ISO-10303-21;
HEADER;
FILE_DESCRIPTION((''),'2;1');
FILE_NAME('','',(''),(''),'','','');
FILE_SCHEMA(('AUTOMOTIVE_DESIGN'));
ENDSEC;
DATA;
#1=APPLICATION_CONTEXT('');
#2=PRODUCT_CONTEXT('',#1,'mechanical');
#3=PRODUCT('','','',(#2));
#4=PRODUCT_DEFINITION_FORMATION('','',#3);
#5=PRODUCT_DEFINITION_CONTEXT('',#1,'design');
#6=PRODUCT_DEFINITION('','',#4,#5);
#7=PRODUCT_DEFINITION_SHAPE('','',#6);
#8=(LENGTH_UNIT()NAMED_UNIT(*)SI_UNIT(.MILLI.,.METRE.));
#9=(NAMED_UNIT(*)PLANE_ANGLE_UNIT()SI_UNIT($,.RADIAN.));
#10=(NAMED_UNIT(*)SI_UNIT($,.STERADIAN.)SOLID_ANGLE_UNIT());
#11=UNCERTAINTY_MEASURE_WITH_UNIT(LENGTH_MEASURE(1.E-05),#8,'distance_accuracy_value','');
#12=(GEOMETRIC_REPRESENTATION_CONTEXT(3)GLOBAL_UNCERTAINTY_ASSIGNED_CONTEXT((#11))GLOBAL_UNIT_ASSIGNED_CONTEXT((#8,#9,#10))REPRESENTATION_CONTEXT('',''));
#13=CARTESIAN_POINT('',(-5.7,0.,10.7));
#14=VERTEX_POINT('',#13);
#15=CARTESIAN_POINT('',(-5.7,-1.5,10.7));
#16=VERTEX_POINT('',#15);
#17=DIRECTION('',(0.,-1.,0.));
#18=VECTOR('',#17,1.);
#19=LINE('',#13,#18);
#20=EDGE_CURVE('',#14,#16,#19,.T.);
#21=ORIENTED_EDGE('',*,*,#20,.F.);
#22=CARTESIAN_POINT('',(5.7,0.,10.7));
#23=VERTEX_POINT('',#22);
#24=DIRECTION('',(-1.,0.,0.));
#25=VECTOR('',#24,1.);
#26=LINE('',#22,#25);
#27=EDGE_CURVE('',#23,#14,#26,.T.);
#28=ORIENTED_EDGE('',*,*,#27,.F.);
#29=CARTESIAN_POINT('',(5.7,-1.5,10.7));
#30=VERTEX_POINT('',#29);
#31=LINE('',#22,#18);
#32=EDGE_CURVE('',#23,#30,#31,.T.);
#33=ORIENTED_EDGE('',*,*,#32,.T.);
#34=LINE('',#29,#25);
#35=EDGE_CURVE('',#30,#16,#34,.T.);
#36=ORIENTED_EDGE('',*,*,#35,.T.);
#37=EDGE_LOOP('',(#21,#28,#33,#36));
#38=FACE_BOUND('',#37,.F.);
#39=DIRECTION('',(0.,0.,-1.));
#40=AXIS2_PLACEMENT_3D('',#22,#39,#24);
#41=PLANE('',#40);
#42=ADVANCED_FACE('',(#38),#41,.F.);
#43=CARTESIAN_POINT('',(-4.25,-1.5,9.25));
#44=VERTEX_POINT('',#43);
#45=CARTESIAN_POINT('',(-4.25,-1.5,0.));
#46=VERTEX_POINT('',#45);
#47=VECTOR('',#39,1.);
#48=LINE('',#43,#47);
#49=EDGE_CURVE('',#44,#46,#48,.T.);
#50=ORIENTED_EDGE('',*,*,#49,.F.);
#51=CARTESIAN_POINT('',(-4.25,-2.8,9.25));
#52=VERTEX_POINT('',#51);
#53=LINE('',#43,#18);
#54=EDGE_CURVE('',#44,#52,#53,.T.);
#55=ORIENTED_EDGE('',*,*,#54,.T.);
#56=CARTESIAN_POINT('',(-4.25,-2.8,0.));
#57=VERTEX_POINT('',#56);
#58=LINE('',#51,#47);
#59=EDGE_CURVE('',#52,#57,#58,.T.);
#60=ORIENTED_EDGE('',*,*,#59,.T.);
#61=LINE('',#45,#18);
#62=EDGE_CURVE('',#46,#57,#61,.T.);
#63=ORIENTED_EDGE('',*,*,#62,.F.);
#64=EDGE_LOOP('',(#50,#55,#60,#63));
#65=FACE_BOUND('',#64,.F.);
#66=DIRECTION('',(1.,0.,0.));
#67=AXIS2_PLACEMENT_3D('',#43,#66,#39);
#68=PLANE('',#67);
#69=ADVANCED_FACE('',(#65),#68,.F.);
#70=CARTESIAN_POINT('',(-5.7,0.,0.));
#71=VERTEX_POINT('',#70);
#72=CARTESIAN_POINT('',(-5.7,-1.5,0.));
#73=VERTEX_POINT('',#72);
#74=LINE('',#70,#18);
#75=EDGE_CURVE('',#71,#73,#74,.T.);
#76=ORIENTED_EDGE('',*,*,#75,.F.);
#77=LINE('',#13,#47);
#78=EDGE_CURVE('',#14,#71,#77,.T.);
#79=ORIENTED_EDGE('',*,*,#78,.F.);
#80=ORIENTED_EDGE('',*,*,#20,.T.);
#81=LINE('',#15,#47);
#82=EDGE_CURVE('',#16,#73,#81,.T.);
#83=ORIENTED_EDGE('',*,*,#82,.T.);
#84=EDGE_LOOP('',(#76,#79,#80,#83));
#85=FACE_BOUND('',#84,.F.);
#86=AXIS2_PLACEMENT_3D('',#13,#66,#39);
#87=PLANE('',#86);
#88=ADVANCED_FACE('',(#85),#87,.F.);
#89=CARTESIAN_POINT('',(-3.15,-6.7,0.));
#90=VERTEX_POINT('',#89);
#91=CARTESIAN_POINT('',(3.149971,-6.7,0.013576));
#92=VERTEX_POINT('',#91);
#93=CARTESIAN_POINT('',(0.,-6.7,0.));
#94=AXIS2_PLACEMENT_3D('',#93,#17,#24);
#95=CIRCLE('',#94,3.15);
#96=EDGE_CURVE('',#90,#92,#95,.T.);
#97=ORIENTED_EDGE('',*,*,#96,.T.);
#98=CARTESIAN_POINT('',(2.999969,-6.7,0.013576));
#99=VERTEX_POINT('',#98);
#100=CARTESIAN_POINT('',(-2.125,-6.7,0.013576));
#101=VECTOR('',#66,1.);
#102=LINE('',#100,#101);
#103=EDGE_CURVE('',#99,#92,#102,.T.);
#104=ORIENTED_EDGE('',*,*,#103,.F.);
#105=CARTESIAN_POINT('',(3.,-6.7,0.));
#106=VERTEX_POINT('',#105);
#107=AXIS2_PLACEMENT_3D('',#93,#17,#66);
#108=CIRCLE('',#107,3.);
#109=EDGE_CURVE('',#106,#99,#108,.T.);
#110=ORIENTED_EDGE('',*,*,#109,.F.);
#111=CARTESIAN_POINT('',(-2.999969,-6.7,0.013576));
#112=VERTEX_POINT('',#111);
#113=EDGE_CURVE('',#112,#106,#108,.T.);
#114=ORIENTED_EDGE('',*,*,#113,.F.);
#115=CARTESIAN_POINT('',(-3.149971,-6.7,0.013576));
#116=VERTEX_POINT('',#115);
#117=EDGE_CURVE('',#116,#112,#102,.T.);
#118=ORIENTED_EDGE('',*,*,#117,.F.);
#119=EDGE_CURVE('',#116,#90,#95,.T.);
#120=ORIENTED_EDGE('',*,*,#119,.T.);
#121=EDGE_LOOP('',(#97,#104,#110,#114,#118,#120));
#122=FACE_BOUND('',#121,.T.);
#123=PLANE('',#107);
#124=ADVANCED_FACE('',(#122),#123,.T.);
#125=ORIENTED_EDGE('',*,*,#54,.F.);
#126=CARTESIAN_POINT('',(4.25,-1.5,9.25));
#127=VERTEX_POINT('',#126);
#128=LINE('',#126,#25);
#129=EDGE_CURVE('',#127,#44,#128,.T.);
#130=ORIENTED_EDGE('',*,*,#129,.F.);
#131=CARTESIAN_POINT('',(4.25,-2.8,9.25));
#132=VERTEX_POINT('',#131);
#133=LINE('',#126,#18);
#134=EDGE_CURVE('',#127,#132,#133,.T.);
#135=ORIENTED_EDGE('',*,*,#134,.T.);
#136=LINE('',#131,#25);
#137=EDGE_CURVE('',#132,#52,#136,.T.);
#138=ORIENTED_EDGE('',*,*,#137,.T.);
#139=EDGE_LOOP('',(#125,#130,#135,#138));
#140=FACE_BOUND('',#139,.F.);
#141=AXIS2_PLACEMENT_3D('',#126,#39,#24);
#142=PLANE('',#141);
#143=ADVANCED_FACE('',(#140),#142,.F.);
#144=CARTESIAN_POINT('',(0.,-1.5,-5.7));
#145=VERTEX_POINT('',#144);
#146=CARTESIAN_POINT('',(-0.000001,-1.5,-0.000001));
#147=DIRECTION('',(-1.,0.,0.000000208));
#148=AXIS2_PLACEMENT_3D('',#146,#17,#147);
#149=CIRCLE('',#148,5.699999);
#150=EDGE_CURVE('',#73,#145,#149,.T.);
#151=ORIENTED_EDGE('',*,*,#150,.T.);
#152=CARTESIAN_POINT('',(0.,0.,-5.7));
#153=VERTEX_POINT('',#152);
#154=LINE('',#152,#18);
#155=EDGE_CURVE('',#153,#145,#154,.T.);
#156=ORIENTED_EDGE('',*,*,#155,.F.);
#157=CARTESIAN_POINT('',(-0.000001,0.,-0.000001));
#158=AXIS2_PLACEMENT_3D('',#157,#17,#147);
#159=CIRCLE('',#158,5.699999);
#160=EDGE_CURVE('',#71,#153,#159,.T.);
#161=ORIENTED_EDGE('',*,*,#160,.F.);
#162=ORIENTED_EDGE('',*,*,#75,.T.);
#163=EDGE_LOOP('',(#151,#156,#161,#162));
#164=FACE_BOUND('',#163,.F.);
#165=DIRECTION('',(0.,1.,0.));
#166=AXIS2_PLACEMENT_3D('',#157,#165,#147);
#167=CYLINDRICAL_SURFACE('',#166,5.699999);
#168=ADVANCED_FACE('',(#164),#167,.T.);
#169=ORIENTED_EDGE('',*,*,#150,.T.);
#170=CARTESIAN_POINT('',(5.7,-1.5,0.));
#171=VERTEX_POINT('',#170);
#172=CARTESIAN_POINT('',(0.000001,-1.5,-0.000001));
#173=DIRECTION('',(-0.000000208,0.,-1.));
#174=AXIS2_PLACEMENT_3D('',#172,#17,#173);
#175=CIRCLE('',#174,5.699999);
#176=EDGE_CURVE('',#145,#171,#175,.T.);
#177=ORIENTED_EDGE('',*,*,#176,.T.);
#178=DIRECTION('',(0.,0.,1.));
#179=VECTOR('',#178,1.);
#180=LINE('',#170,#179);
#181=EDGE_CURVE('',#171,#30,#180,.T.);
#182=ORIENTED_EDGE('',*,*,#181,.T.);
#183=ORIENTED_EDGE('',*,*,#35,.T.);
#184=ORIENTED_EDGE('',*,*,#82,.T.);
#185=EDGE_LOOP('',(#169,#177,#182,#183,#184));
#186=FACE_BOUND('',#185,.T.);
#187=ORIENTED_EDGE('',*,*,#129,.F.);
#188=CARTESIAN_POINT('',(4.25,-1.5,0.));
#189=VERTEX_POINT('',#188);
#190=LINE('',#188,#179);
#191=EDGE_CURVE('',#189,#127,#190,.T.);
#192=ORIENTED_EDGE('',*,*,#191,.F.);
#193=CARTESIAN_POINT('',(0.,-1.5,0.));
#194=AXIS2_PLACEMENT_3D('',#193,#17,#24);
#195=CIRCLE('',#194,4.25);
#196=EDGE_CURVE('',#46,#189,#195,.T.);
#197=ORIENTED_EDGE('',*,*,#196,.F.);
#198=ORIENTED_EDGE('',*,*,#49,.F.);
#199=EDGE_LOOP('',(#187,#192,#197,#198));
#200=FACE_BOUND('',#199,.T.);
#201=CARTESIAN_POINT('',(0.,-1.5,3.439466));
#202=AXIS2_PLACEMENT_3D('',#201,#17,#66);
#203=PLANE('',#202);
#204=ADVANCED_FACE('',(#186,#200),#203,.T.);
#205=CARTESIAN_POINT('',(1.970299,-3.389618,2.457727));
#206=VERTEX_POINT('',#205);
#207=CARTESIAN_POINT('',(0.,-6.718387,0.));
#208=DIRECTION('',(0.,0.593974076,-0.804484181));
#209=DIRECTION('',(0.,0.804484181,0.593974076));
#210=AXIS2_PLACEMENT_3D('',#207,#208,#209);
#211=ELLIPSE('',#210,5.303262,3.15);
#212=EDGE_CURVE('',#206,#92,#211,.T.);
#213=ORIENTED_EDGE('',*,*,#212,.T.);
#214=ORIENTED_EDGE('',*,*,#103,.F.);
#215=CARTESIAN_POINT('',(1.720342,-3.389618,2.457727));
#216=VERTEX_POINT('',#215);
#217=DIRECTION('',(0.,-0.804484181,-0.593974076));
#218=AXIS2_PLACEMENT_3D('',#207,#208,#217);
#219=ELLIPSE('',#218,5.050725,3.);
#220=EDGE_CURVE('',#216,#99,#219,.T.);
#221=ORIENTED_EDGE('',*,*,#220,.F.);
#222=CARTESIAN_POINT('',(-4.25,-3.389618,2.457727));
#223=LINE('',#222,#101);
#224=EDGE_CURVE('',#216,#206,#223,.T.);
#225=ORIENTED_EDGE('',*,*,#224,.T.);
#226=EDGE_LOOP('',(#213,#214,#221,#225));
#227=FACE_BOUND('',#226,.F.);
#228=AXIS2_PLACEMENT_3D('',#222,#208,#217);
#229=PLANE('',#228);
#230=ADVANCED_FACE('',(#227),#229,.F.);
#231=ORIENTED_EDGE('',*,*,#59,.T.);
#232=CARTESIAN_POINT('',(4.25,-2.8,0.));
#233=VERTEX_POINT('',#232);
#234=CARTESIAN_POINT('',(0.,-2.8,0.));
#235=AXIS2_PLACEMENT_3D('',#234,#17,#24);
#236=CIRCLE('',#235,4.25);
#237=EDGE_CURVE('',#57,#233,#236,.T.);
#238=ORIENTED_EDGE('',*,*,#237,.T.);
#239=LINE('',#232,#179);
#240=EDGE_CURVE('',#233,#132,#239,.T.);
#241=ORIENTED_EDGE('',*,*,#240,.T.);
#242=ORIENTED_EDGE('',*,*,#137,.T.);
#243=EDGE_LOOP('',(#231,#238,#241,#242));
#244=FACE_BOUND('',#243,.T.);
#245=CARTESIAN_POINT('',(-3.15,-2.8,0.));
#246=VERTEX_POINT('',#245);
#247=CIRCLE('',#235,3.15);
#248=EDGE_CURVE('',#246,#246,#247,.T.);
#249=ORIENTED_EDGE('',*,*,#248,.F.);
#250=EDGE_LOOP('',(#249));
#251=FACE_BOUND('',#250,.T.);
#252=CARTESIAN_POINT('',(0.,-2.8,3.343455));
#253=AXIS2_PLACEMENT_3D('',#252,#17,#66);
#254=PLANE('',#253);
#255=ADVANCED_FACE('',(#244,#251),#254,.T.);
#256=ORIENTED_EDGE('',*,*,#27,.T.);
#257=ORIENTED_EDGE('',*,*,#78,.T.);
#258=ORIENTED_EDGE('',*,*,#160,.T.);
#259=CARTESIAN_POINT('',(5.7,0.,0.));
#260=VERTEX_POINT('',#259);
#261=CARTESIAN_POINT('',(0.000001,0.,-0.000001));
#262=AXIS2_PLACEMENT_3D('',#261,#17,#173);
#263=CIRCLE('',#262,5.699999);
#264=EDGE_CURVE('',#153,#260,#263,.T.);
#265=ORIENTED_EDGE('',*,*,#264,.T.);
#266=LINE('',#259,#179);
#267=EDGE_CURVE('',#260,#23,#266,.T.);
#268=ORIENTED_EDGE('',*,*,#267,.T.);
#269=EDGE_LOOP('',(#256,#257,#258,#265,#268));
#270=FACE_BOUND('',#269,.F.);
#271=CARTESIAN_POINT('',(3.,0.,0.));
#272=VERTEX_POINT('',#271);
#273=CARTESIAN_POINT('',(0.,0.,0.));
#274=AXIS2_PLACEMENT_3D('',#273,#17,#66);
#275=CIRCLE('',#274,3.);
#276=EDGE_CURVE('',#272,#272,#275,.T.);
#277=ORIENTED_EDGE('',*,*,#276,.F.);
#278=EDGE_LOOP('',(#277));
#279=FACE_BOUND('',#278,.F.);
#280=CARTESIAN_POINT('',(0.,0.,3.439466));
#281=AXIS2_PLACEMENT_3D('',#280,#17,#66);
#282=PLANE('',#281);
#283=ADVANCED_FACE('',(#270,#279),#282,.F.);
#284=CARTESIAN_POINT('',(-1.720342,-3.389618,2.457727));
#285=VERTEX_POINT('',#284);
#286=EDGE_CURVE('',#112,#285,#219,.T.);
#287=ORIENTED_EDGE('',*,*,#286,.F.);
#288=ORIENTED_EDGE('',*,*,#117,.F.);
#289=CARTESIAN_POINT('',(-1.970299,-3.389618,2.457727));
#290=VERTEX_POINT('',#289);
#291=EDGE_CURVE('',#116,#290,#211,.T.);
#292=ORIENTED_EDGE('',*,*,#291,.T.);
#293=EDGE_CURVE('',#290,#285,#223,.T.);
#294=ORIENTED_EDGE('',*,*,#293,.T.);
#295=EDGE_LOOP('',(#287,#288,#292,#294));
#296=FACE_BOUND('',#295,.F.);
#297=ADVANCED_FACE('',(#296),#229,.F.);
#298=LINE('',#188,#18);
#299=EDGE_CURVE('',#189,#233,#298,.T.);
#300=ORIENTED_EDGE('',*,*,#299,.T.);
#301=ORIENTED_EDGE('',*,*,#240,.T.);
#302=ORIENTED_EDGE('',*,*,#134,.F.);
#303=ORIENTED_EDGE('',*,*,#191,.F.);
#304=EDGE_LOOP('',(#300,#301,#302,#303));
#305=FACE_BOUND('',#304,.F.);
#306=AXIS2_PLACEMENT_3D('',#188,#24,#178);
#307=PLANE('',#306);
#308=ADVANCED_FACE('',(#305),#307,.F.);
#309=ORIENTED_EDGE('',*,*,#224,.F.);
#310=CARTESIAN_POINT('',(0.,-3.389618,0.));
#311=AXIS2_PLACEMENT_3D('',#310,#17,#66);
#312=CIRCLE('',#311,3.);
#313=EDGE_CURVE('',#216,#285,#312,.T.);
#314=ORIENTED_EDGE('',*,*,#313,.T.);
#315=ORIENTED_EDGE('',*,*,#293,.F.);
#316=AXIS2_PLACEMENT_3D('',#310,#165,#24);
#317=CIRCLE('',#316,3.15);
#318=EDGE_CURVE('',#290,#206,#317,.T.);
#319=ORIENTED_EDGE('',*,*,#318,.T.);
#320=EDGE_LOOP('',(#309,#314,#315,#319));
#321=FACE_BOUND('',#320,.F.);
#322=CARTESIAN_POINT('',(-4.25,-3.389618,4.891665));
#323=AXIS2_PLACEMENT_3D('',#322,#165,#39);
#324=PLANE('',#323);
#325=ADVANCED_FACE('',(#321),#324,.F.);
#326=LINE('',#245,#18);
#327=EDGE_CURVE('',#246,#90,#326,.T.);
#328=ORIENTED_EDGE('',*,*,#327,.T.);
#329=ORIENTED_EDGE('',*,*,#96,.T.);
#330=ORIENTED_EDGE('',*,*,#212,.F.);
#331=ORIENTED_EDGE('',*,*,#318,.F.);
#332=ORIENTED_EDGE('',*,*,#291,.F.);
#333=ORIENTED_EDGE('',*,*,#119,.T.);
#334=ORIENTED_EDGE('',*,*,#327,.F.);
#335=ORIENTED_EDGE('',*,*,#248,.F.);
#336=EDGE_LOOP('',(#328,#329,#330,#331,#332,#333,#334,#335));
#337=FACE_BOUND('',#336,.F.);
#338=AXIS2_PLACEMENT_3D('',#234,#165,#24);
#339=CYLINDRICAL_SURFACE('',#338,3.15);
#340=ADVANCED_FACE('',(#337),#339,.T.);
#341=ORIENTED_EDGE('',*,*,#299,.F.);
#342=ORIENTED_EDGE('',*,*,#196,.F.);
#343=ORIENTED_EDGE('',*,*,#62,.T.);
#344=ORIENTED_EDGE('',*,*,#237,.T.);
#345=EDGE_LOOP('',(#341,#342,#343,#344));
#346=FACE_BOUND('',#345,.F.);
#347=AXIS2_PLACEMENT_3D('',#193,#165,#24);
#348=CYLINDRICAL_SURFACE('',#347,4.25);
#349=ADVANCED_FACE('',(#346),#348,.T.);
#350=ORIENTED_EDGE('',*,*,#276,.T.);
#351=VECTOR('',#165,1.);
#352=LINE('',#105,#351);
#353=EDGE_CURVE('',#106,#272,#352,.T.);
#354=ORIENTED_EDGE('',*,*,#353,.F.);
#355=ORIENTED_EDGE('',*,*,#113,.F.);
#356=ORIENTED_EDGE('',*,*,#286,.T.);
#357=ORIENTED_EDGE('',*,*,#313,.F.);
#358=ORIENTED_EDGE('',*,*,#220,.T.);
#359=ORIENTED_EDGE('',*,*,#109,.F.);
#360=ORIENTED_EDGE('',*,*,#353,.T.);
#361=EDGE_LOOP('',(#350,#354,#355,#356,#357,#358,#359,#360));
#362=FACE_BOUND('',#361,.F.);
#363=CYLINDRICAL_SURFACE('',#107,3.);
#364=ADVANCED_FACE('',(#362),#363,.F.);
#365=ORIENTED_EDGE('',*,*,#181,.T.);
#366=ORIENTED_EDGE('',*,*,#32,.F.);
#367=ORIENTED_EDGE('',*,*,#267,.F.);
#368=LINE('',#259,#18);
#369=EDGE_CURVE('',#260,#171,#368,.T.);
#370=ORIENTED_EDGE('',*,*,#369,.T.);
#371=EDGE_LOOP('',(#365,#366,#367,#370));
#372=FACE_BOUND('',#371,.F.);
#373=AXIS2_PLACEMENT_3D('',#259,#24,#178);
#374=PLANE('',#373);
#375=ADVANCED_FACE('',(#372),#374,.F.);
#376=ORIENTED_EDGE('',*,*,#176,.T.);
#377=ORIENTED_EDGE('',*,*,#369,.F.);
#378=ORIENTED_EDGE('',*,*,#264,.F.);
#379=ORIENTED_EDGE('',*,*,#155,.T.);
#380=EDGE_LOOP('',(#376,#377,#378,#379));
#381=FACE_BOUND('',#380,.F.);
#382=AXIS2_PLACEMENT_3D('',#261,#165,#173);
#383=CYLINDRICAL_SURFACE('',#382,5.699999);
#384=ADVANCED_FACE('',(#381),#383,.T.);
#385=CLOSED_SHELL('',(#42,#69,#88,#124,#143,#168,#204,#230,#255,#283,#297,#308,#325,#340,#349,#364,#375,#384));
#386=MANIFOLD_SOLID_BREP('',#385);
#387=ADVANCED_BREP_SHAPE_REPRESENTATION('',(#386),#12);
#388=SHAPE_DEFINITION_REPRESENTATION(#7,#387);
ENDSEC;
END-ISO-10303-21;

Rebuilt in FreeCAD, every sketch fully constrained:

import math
import FreeCAD as App
import Part
import Sketcher
from FreeCAD import Vector
Q = App.Units.Quantity


def add_polygon(sketch, points):
    """Adds a closed chain of lines whose ends are joined by coincident constraints."""
    first, n = sketch.GeometryCount, len(points)
    for a, b in zip(points, points[1:] + points[:1]):
        sketch.addGeometry(Part.LineSegment(App.Vector(*a, 0), App.Vector(*b, 0)), False)
    for i in range(n):
        sketch.addConstraint(Sketcher.Constraint("Coincident", first + i, 2, first + (i + 1) % n, 1))

doc = App.newDocument("Part")
body = doc.addObject("PartDesign::Body", "Body")

# Sketch on XZ plane
sketch1 = body.newObject("Sketcher::SketchObject", "Sketch")
sketch1.AttachmentSupport = (doc.getObject("XZ_Plane"), [""])
sketch1.MapMode = "FlatFace"
sketch1.addGeometry([
    Part.LineSegment(Vector(-6, 11, 0), Vector(-6, 0, 0)),  # 0
    Part.ArcOfCircle(Part.Circle(Vector(0, 0, 0), Vector(0, 0, 1), 6), math.radians(180), math.radians(270)),  # 1
    Part.ArcOfCircle(Part.Circle(Vector(0, 0, 0), Vector(0, 0, 1), 6), math.radians(-90), math.radians(0)),  # 2
    Part.LineSegment(Vector(6, 0, 0), Vector(6, 11, 0)),  # 3
    Part.LineSegment(Vector(6, 11, 0), Vector(-6, 11, 0)),  # 4
], False)
sketch1.addConstraint([
    Sketcher.Constraint("Tangent", 0, 2, 1, 1),
    Sketcher.Constraint("Tangent", 1, 2, 2, 1),
    Sketcher.Constraint("Tangent", 2, 2, 3, 1),
    Sketcher.Constraint("Coincident", 3, 2, 4, 1),
    Sketcher.Constraint("Coincident", 4, 2, 0, 1),
    Sketcher.Constraint("Vertical", 0),
    Sketcher.Constraint("Vertical", 3),
    Sketcher.Constraint("Horizontal", 4),
    Sketcher.Constraint("Coincident", 1, 3, -1, 1),
    Sketcher.Constraint("Equal", 1, 2),
    Sketcher.Constraint("PointOnObject", 1, 2, -2),
    Sketcher.Constraint("Radius", 1, Q("5.699999 mm")),
    Sketcher.Constraint("DistanceY", 0, 2, 0, 1, Q("10.7 mm")),
])
pad1 = body.newObject("PartDesign::Pad", "Pad")
pad1.Profile = sketch1
pad1.Length = 1.5

# Sketch on XZ plane
sketch2 = body.newObject("Sketcher::SketchObject", "Sketch001")
sketch2.AttachmentSupport = (doc.getObject("XZ_Plane"), [""])
sketch2.MapMode = "FlatFace"
sketch2.AttachmentOffset = App.Placement(Vector(0, 0, 1.5), App.Rotation())
sketch2.addGeometry([
    Part.LineSegment(Vector(4.2, 0, 0), Vector(4.2, 9.2, 0)),
    Part.LineSegment(Vector(4.2, 9.2, 0), Vector(-4.2, 9.2, 0)),
    Part.LineSegment(Vector(-4.2, 9.2, 0), Vector(-4.2, 0, 0)),
    Part.ArcOfCircle(Part.Circle(Vector(0, 0, 0), Vector(0, 0, 1), 4.2), math.radians(180), math.radians(360)),
], False)
sketch2.addConstraint([
    Sketcher.Constraint("Coincident", 0, 2, 1, 1),
    Sketcher.Constraint("Coincident", 1, 2, 2, 1),
    Sketcher.Constraint("Tangent", 2, 2, 3, 1),
    Sketcher.Constraint("Tangent", 3, 2, 0, 1),
    Sketcher.Constraint("Vertical", 0),
    Sketcher.Constraint("Horizontal", 1),
    Sketcher.Constraint("Vertical", 2),
    Sketcher.Constraint("Coincident", 3, 3, -1, 1),
    Sketcher.Constraint("Radius", 3, Q("4.25 mm")),
    Sketcher.Constraint("DistanceY", 0, 1, 0, 2, Q("9.25 mm")),
])
pad2 = body.newObject("PartDesign::Pad", "Pad001")
pad2.Profile = sketch2
pad2.Length = 1.3

# Sketch on XZ plane
sketch3 = body.newObject("Sketcher::SketchObject", "Sketch002")
sketch3.AttachmentSupport = (doc.getObject("XZ_Plane"), [""])
sketch3.MapMode = "FlatFace"
sketch3.AttachmentOffset = App.Placement(Vector(0, 0, 2.8), App.Rotation())
sketch3.addGeometry(Part.Circle(Vector(0, 0, 0), Vector(0, 0, 1), 3.1), False)
sketch3.addConstraint([
    Sketcher.Constraint("Coincident", 0, 3, -1, 1),
    Sketcher.Constraint("Diameter", 0, Q("6.3 mm")),
])
pad3 = body.newObject("PartDesign::Pad", "Pad002")
pad3.Profile = sketch3
pad3.Length = 3.9

# Sketch on XZ plane
sketch4 = body.newObject("Sketcher::SketchObject", "Sketch003")
sketch4.AttachmentSupport = (doc.getObject("XZ_Plane"), [""])
sketch4.MapMode = "FlatFace"
sketch4.AttachmentOffset = App.Placement(Vector(0, 0, 6.7), App.Rotation())
sketch4.addGeometry(Part.Circle(Vector(0, 0, 0), Vector(0, 0, 1), 3), False)
sketch4.addConstraint([
    Sketcher.Constraint("Coincident", 0, 3, -1, 1),
    Sketcher.Constraint("Diameter", 0, Q("6 mm")),
])
pocket1 = body.newObject("PartDesign::Pocket", "Pocket")
pocket1.Profile = sketch4
pocket1.Type = "ThroughAll"

# Sketch on YZ plane
sketch5 = body.newObject("Sketcher::SketchObject", "Sketch004")
sketch5.AttachmentSupport = (doc.getObject("YZ_Plane"), [""])
sketch5.MapMode = "FlatFace"
sketch5.AttachmentOffset = App.Placement(Vector(0, 0, -4.25), App.Rotation())
add_polygon(sketch5, [(-3.4, 4.9), (-3.4, 2.5), (-6.7, 0), (-7.9, 0), (-7.9, 4.9)])  # lines 0-4
sketch5.addConstraint([
    Sketcher.Constraint("Vertical", 0),
    Sketcher.Constraint("Horizontal", 2),
    Sketcher.Constraint("Horizontal", 4),
    Sketcher.Constraint("PointOnObject", 1, 2, -1),
    Sketcher.Constraint("Distance", 1, Q("4.137768 mm")),
    Sketcher.Constraint("DistanceX", 2, 2, 2, 1, Q("1.145383 mm")),
    Sketcher.Constraint("DistanceX", 4, 1, 4, 2, Q("4.509945 mm")),
    Sketcher.Constraint("DistanceY", 0, 2, 0, 1, Q("2.433938 mm")),
    Sketcher.Constraint("DistanceX", 0, 2, -1, 1, Q("3.389618 mm")),
    Sketcher.Constraint("DistanceX", 2, 2, -1, 1, Q("7.86377 mm")),
])
pocket2 = body.newObject("PartDesign::Pocket", "Pocket001")
pocket2.Profile = sketch5
pocket2.Length = 25
pocket2.Reversed = True

doc.recompute()
